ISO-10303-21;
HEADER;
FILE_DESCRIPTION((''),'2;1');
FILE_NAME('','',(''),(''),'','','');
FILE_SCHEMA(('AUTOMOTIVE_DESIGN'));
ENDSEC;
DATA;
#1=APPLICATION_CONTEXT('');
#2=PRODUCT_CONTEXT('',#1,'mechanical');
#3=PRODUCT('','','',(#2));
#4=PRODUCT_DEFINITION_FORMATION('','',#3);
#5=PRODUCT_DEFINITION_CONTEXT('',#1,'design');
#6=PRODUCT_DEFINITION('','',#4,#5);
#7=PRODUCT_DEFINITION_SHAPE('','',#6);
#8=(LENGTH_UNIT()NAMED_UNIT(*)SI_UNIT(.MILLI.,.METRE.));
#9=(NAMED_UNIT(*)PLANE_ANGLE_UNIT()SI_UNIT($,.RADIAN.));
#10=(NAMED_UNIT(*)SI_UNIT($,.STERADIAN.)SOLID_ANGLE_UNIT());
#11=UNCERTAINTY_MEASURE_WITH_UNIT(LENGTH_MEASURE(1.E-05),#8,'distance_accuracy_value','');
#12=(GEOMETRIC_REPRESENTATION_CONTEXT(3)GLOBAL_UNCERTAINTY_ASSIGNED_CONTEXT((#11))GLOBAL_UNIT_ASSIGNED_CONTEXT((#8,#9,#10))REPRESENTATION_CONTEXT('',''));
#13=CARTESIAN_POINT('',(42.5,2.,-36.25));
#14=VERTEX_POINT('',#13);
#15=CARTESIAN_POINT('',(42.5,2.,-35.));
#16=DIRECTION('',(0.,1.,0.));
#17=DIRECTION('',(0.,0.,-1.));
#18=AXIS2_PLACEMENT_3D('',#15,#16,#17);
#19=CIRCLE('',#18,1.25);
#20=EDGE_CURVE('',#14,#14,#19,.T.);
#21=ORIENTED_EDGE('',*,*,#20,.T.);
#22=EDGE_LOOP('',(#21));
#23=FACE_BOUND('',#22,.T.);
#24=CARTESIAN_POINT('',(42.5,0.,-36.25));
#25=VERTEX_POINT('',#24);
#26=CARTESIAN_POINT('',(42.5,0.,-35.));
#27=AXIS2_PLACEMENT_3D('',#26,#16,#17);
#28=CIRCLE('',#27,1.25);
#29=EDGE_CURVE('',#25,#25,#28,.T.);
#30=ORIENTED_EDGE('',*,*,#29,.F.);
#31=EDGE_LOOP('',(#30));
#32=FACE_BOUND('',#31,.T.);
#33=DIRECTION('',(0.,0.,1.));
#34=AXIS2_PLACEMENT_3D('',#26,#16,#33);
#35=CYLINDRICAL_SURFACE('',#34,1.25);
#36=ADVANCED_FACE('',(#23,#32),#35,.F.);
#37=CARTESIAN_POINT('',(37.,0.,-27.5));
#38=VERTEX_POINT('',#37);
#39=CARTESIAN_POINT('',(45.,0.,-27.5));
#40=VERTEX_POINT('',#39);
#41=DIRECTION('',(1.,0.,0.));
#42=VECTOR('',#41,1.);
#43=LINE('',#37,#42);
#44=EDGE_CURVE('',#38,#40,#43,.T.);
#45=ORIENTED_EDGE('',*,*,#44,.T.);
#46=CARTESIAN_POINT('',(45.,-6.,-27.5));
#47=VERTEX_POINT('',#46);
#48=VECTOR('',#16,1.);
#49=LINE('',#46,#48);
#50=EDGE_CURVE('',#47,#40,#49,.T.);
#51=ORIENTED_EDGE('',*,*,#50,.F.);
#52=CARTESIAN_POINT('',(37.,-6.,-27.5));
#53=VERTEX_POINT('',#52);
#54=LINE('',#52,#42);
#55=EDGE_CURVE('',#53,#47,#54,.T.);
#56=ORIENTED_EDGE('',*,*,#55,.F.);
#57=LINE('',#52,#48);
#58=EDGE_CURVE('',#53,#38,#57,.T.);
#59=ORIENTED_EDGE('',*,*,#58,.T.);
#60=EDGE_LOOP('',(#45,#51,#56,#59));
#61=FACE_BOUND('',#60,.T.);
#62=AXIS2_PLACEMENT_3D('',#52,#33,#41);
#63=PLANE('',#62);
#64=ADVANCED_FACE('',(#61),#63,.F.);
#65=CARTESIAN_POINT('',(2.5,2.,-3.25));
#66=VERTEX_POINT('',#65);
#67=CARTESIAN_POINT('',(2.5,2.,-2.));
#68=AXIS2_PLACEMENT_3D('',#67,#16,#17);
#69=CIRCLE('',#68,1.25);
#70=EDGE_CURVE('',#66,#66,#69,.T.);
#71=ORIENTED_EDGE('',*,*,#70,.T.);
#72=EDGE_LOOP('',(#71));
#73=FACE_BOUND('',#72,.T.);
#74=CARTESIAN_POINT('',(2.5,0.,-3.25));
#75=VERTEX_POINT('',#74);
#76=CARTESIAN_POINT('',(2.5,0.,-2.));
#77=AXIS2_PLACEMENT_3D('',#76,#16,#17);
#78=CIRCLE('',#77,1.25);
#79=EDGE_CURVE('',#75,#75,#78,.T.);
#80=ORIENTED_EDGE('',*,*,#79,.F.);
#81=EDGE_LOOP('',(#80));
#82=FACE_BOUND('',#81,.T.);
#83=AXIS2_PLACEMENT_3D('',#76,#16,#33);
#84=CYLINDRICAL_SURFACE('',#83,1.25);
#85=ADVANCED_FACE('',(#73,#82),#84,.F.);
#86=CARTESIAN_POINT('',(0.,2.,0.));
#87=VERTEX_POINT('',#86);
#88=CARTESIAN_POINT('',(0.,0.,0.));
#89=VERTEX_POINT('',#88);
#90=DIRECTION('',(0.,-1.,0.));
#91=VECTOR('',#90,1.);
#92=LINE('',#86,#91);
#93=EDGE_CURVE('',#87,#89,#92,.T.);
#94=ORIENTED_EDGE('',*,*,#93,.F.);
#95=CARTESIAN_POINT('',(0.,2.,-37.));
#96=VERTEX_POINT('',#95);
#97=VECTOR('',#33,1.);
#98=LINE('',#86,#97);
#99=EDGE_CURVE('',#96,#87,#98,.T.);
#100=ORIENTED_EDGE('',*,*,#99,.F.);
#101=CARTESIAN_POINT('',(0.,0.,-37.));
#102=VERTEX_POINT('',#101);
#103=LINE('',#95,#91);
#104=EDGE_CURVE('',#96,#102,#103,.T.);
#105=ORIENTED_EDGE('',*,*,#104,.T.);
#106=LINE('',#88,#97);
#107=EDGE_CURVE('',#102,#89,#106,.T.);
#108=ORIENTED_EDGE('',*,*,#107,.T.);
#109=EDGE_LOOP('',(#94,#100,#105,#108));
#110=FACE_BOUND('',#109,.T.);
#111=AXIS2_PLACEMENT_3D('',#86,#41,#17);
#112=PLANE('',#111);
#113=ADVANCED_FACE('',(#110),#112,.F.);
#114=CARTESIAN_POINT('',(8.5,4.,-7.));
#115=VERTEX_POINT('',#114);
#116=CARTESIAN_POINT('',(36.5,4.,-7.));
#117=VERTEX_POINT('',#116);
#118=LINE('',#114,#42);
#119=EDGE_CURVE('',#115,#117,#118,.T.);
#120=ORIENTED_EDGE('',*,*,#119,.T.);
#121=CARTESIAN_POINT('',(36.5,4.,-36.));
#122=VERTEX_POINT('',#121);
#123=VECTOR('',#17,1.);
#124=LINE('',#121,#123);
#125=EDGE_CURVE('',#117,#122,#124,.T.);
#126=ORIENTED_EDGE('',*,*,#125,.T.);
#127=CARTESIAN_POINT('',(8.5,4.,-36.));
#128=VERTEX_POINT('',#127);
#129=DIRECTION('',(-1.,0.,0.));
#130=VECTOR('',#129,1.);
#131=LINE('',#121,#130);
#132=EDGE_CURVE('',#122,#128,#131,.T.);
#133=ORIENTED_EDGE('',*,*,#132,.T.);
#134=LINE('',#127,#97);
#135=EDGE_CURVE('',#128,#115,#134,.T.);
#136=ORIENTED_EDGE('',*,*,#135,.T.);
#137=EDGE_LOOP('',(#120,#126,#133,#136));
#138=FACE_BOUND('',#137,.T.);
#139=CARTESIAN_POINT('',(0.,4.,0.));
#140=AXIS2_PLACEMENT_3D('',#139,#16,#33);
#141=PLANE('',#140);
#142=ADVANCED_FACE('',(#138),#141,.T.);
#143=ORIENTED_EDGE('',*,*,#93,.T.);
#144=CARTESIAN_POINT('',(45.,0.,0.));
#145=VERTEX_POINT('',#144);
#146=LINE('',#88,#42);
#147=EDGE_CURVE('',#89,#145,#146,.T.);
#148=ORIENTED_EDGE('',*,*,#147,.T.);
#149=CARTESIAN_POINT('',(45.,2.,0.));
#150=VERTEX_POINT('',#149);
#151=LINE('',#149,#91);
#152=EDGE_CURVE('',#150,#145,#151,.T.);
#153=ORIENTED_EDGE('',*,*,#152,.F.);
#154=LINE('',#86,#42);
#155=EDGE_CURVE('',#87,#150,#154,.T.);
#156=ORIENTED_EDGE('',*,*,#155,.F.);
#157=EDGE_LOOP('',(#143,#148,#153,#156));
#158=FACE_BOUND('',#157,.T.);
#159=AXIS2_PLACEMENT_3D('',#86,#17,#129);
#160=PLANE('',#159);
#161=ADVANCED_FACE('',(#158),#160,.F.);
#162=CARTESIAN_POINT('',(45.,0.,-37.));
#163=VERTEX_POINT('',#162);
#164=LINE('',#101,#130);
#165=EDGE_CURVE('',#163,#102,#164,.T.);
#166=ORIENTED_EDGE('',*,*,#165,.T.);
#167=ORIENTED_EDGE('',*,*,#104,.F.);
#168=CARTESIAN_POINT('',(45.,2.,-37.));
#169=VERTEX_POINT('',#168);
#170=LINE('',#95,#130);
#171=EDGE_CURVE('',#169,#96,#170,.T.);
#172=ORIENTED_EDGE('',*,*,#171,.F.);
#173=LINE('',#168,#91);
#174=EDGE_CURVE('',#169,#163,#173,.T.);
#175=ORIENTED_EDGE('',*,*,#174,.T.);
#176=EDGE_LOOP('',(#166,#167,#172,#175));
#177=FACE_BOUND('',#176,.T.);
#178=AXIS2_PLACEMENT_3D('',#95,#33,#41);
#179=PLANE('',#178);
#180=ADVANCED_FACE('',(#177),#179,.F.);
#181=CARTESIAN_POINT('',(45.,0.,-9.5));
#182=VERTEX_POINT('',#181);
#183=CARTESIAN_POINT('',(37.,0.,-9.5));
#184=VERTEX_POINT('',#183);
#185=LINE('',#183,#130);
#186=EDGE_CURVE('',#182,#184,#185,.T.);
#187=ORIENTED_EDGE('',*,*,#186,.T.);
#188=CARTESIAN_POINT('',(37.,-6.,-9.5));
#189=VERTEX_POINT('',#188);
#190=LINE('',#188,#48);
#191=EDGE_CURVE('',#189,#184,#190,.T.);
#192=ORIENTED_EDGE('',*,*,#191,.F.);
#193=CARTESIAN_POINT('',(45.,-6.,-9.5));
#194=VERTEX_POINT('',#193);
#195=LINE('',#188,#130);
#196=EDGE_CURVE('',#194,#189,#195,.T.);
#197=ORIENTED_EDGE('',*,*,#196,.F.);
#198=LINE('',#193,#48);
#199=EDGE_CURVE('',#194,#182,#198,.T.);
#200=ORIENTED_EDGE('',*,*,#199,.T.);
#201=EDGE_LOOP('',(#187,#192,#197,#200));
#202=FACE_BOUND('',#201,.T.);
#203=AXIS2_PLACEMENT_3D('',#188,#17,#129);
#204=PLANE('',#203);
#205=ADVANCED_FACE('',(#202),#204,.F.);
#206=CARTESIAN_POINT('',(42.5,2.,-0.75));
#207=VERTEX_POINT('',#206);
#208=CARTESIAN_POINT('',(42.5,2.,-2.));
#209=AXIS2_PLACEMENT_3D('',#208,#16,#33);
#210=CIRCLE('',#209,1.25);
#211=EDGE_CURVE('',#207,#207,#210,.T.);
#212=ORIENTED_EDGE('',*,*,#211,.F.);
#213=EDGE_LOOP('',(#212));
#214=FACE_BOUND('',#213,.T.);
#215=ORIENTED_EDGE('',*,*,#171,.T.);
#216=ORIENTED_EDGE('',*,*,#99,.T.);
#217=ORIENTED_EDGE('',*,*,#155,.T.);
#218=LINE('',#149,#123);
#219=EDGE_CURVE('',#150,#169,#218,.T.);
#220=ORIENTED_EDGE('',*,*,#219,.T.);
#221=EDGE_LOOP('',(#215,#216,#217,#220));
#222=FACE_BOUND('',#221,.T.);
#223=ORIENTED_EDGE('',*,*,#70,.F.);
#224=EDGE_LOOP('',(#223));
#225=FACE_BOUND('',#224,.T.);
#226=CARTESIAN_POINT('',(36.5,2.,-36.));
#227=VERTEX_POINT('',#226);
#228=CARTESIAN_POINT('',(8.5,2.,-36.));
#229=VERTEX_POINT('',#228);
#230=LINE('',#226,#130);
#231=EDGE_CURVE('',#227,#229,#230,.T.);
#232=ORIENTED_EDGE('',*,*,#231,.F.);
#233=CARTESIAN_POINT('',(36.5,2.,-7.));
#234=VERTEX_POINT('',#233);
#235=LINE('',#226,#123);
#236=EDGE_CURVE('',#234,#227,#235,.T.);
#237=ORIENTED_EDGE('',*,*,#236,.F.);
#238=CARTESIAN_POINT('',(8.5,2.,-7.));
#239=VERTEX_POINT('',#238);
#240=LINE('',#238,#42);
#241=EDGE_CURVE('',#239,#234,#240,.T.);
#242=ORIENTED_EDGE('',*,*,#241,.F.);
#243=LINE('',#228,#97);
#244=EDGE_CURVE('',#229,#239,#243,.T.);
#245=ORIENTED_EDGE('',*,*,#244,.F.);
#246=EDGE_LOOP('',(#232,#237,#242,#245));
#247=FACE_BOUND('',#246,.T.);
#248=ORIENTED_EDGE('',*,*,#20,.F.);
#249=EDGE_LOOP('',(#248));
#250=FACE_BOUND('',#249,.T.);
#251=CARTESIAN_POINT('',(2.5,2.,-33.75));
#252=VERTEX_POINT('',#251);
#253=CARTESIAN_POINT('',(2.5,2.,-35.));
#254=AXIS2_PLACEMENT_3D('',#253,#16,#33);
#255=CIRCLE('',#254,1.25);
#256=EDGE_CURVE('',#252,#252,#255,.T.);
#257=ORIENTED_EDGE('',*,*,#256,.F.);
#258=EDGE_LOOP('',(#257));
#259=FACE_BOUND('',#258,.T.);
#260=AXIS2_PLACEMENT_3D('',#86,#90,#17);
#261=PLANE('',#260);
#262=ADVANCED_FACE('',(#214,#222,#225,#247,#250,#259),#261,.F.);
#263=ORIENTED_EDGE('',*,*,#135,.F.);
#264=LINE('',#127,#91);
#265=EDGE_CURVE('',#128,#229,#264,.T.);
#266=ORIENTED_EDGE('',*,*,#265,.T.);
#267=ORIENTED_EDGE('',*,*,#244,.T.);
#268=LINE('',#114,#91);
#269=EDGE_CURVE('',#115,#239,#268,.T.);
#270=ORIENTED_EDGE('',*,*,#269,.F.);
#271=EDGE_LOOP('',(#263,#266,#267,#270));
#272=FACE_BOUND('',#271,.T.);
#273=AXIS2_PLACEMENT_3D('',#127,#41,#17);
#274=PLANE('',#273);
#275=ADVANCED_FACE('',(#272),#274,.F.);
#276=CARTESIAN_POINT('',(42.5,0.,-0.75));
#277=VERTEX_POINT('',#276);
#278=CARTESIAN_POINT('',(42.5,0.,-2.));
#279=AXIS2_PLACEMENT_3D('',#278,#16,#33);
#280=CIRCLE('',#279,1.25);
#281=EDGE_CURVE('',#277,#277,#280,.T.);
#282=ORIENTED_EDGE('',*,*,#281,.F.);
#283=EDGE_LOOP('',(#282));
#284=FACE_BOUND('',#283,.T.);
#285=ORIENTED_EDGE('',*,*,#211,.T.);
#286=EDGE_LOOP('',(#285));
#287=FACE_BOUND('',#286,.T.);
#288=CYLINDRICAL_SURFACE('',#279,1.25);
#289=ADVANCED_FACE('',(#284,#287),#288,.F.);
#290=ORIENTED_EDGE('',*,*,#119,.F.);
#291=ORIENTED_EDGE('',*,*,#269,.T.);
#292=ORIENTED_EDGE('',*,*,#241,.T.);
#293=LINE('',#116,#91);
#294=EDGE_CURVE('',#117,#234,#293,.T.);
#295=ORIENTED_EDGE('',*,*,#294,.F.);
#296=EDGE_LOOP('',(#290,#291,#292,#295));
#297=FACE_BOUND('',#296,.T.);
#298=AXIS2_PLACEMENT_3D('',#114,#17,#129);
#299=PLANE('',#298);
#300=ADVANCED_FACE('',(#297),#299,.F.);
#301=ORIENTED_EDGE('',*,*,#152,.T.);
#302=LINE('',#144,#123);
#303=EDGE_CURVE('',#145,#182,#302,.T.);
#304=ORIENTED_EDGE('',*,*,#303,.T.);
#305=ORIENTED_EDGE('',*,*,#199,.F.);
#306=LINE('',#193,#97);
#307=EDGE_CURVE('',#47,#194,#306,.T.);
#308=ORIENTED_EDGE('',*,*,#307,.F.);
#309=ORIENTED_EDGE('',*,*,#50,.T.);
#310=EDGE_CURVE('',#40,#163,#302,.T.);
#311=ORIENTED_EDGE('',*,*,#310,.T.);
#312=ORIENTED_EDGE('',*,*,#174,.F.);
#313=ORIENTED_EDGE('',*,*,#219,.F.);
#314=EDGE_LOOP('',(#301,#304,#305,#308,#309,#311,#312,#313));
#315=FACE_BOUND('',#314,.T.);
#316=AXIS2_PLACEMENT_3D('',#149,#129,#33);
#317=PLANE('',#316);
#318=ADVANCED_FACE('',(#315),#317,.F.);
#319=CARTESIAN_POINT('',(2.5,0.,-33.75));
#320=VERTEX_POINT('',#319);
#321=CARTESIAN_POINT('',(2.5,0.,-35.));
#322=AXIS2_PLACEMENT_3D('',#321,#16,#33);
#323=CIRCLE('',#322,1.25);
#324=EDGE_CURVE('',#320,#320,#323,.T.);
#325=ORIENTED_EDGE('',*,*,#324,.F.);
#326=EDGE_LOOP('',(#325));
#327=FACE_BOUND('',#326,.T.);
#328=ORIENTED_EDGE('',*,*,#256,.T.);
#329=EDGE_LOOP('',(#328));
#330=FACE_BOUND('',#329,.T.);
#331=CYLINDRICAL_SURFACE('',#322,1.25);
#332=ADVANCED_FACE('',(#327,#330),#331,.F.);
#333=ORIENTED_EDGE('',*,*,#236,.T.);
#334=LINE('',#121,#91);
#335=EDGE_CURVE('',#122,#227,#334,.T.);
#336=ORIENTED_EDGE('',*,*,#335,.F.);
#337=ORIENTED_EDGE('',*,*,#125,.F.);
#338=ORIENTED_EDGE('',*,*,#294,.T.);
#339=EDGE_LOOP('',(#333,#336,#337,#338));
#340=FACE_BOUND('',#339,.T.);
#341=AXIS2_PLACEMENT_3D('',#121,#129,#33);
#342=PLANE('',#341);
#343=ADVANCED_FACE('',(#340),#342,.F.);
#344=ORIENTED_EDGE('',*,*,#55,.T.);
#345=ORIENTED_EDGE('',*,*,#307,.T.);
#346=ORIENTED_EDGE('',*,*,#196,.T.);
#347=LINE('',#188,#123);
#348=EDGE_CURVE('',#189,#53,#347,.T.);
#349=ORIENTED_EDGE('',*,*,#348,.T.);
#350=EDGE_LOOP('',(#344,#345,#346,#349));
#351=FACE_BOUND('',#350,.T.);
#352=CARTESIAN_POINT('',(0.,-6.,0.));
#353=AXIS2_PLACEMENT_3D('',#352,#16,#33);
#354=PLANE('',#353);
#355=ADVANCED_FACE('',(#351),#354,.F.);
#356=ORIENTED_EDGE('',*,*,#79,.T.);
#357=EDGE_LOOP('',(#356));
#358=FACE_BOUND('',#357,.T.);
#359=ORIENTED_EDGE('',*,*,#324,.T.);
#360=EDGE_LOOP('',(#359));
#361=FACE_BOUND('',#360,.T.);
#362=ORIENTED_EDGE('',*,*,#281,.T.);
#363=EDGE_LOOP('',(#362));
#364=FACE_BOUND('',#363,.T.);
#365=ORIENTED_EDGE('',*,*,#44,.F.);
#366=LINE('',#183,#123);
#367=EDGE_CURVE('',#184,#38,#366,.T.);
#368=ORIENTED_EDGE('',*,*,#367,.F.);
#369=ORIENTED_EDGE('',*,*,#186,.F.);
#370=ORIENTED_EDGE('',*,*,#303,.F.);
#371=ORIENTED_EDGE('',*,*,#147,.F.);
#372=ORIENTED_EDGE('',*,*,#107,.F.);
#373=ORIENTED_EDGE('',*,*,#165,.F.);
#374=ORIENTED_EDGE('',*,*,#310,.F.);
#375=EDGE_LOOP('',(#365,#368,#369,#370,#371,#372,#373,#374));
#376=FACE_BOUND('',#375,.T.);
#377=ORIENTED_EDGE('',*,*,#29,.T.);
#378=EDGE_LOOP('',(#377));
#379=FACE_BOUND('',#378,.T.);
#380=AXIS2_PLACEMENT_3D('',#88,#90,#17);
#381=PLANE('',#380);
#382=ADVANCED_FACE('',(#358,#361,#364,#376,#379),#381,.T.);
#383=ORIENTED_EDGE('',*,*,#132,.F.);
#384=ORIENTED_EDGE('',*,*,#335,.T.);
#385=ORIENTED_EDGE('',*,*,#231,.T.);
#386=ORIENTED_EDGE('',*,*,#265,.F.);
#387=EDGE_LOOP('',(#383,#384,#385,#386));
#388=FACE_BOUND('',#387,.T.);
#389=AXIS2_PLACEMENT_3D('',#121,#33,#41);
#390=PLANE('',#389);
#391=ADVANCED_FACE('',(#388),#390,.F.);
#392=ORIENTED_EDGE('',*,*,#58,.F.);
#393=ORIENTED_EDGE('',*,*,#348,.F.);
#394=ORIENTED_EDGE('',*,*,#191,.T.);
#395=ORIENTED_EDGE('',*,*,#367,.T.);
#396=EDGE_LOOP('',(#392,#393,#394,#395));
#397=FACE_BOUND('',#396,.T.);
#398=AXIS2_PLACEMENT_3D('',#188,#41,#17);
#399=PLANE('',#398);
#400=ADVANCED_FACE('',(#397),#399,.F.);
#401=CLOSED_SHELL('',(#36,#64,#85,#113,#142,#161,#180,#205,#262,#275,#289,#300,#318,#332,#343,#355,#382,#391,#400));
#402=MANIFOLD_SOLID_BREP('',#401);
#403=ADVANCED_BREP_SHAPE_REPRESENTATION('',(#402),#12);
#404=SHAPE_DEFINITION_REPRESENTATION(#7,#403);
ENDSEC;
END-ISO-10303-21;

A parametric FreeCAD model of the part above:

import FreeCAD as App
import Part
import Sketcher
Q = App.Units.Quantity

doc = App.newDocument("Part")
body = doc.addObject("PartDesign::Body", "Body")

# Sketch on XZ plane
sketch1 = body.newObject("Sketcher::SketchObject", "Sketch")
sketch1.AttachmentSupport = (doc.getObject("XZ_Plane"), [""])
sketch1.MapMode = "FlatFace"
sketch1.addGeometry([
    Part.LineSegment(App.Vector(0, -37, 0), App.Vector(0, 0, 0)),
    Part.LineSegment(App.Vector(0, 0, 0), App.Vector(45, 0, 0)),
    Part.LineSegment(App.Vector(45, 0, 0), App.Vector(45, -37, 0)),
    Part.LineSegment(App.Vector(45, -37, 0), App.Vector(0, -37, 0)),
], False)
sketch1.addConstraint([
    Sketcher.Constraint("Coincident", 0, 2, 1, 1),
    Sketcher.Constraint("Coincident", 1, 2, 2, 1),
    Sketcher.Constraint("Coincident", 2, 2, 3, 1),
    Sketcher.Constraint("Coincident", 3, 2, 0, 1),
    Sketcher.Constraint("Vertical", 0),
    Sketcher.Constraint("Horizontal", 1),
    Sketcher.Constraint("Vertical", 2),
    Sketcher.Constraint("Horizontal", 3),
    Sketcher.Constraint("Coincident", 0, 2, -1, 1),
    Sketcher.Constraint("DistanceX", 1, 1, 1, 2, Q("45 mm")),
    Sketcher.Constraint("DistanceY", 0, 1, 0, 2, Q("37 mm")),
])
pad1 = body.newObject("PartDesign::Pad", "Pad")
pad1.Profile = sketch1
pad1.Length = 2
pad1.Reversed = True

# Sketch on XZ plane
sketch2 = body.newObject("Sketcher::SketchObject", "Sketch001")
sketch2.AttachmentSupport = (doc.getObject("XZ_Plane"), [""])
sketch2.MapMode = "FlatFace"
sketch2.AttachmentOffset = App.Placement(App.Vector(0, 0, -2), App.Rotation())
sketch2.addGeometry([
    Part.LineSegment(App.Vector(8, -36, 0), App.Vector(8, -7, 0)),
    Part.LineSegment(App.Vector(8, -7, 0), App.Vector(36, -7, 0)),
    Part.LineSegment(App.Vector(36, -7, 0), App.Vector(36, -36, 0)),
    Part.LineSegment(App.Vector(36, -36, 0), App.Vector(8, -36, 0)),
], False)
sketch2.addConstraint([
    Sketcher.Constraint("Coincident", 0, 2, 1, 1),
    Sketcher.Constraint("Coincident", 1, 2, 2, 1),
    Sketcher.Constraint("Coincident", 2, 2, 3, 1),
    Sketcher.Constraint("Coincident", 3, 2, 0, 1),
    Sketcher.Constraint("Vertical", 0),
    Sketcher.Constraint("Horizontal", 1),
    Sketcher.Constraint("Vertical", 2),
    Sketcher.Constraint("Horizontal", 3),
    Sketcher.Constraint("DistanceX", 1, 1, 1, 2, Q("28 mm")),
    Sketcher.Constraint("DistanceY", 0, 1, 0, 2, Q("29 mm")),
    Sketcher.Constraint("DistanceY", 0, 2, -1, 1, Q("7 mm")),
    Sketcher.Constraint("DistanceX", -1, 1, 0, 2, Q("8.5 mm")),
])
pad2 = body.newObject("PartDesign::Pad", "Pad001")
pad2.Profile = sketch2
pad2.Length = 2
pad2.Reversed = True

# Sketch on XZ plane
sketch3 = body.newObject("Sketcher::SketchObject", "Sketch002")
sketch3.AttachmentSupport = (doc.getObject("XZ_Plane"), [""])
sketch3.MapMode = "FlatFace"
sketch3.AttachmentOffset = App.Placement(App.Vector(0, 0, -2), App.Rotation())
sketch3.addGeometry([
    Part.Circle(App.Vector(2.5, -35, 0), App.Vector(0, 0, 1), 1.2),
    Part.Circle(App.Vector(42.5, -35, 0), App.Vector(0, 0, 1), 1.2),
    Part.Circle(App.Vector(42.5, -2, 0), App.Vector(0, 0, 1), 1.2),
    Part.Circle(App.Vector(2.5, -2, 0), App.Vector(0, 0, 1), 1.2),
], False)
sketch3.addConstraint([
    Sketcher.Constraint("Equal", 0, 1),
    Sketcher.Constraint("Equal", 1, 2),
    Sketcher.Constraint("Equal", 2, 3),
    Sketcher.Constraint("Horizontal", 0, 3, 1, 3),
    Sketcher.Constraint("Horizontal", 2, 3, 3, 3),
    Sketcher.Constraint("Vertical", 1, 3, 2, 3),
    Sketcher.Constraint("Vertical", 0, 3, 3, 3),
    Sketcher.Constraint("Diameter", 0, Q("2.5 mm")),
    Sketcher.Constraint("DistanceY", 0, 3, -1, 1, Q("35 mm")),
    Sketcher.Constraint("DistanceY", 2, 3, -1, 1, Q("2 mm")),
    Sketcher.Constraint("DistanceX", 0, 3, 1, 3, Q("40 mm")),
    Sketcher.Constraint("DistanceX", -1, 1, 0, 3, Q("2.5 mm")),
])
pocket1 = body.newObject("PartDesign::Pocket", "Pocket")
pocket1.Profile = sketch3
pocket1.Length = 2
pocket1.Reversed = True

# Sketch on XZ plane
sketch4 = body.newObject("Sketcher::SketchObject", "Sketch003")
sketch4.AttachmentSupport = (doc.getObject("XZ_Plane"), [""])
sketch4.MapMode = "FlatFace"
sketch4.addGeometry([
    Part.LineSegment(App.Vector(37, -10, 0), App.Vector(37, -28, 0)),
    Part.LineSegment(App.Vector(37, -28, 0), App.Vector(45, -28, 0)),
    Part.LineSegment(App.Vector(45, -28, 0), App.Vector(45, -10, 0)),
    Part.LineSegment(App.Vector(45, -10, 0), App.Vector(37, -10, 0)),
], False)
sketch4.addConstraint([
    Sketcher.Constraint("Coincident", 0, 2, 1, 1),
    Sketcher.Constraint("Coincident", 1, 2, 2, 1),
    Sketcher.Constraint("Coincident", 2, 2, 3, 1),
    Sketcher.Constraint("Coincident", 3, 2, 0, 1),
    Sketcher.Constraint("Vertical", 0),
    Sketcher.Constraint("Horizontal", 1),
    Sketcher.Constraint("Vertical", 2),
    Sketcher.Constraint("Horizontal", 3),
    Sketcher.Constraint("DistanceX", 1, 1, 1, 2, Q("8 mm")),
    Sketcher.Constraint("DistanceY", 0, 2, 0, 1, Q("18 mm")),
    Sketcher.Constraint("DistanceX", -1, 1, 0, 2, Q("37 mm")),
    Sketcher.Constraint("DistanceY", 0, 2, -1, 1, Q("27.5 mm")),
])
pad3 = body.newObject("PartDesign::Pad", "Pad002")
pad3.Profile = sketch4
pad3.Length = 6

doc.recompute()
